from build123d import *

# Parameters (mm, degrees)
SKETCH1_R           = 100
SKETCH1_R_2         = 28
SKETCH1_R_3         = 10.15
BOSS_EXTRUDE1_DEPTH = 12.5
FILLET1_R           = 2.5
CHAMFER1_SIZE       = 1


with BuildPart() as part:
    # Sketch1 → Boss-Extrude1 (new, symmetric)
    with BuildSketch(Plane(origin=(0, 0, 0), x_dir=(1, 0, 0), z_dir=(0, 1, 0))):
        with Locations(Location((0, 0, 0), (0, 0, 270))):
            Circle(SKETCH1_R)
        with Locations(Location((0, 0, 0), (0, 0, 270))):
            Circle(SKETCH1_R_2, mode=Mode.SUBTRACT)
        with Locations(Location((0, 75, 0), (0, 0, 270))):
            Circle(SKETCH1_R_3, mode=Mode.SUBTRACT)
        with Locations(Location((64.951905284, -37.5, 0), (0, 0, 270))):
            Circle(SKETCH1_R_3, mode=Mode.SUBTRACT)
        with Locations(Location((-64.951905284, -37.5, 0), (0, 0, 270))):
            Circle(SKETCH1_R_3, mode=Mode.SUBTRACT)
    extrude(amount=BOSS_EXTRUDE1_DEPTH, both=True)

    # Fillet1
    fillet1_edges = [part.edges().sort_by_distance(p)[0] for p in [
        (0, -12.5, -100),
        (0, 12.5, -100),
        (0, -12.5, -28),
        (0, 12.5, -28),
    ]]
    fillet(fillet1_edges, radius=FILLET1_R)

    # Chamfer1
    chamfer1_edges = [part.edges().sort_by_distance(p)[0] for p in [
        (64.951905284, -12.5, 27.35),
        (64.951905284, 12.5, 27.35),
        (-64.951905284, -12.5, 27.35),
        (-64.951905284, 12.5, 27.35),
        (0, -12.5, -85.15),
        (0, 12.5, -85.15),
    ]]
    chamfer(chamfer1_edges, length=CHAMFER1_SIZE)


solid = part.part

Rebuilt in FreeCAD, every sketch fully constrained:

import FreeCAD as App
import Part
import Sketcher

V = App.Vector


def edges_at(feature, points):
    """Names of the edges that pass closest to the given points."""
    edges = feature.Shape.Edges
    near = lambda p: min(range(len(edges)), key=lambda i: edges[i].distToShape(Part.Vertex(*p))[0])
    return sorted({f"Edge{near(p) + 1}" for p in points})

doc = App.newDocument("Part")
params = doc.addObject("Spreadsheet::Sheet", "Params")
for row, (alias, value) in enumerate([
    ("sketch1_diameter", "200 mm"),
    ("sketch1_diameter2", "56 mm"),
    ("sketch1_diameter3", "20.3 mm"),
    ("pad1_length", "25 mm"),
    ("fillet_radius", "2.5 mm"),
    ("chamfer_size", "1 mm"),
], start=1):
    params.set(f"A{row}", alias)
    params.set(f"B{row}", "=" + value)
    params.setAlias(f"B{row}", alias)

body = doc.addObject("PartDesign::Body", "Body")

# Sketch on XZ plane
sketch1 = body.newObject("Sketcher::SketchObject", "Sketch")
sketch1.AttachmentSupport = (doc.getObject("XZ_Plane"), [""])
sketch1.MapMode = "FlatFace"
sketch1.addGeometry([
    Part.Circle(V(0, 0, 0), V(0, 0, 1), 100),  # 0
    Part.Circle(V(0, -75, 0), V(0, 0, 1), 10),  # 1
    Part.Circle(V(-65, 38, 0), V(0, 0, 1), 10),  # 2
    Part.Circle(V(0, 0, 0), V(0, 0, 1), 28),  # 3
    Part.Circle(V(65, 38, 0), V(0, 0, 1), 10),  # 4
], False)
sketch1.addConstraint([
    Sketcher.Constraint("Coincident", 0, 3, -1, 1),
    Sketcher.Constraint("Coincident", 3, 3, -1, 1),
    Sketcher.Constraint("Equal", 1, 2),
    Sketcher.Constraint("Equal", 2, 4),
    Sketcher.Constraint("Symmetric", 2, 3, 4, 3, -2),
    Sketcher.Constraint("PointOnObject", 1, 3, -2),
    Sketcher.Constraint("Diameter", 0, 200.0),
    Sketcher.Constraint("Diameter", 3, 56.0),
    Sketcher.Constraint("Diameter", 1, 20.3),
    Sketcher.Constraint("DistanceY", 1, 3, -1, 1, 75.0),
    Sketcher.Constraint("DistanceY", -1, 1, 2, 3, 37.5),
    Sketcher.Constraint("DistanceX", 2, 3, 4, 3, 129.903811),
])
sketch1.setExpression("Constraints[6]", "Params.sketch1_diameter")
sketch1.setExpression("Constraints[7]", "Params.sketch1_diameter2")
sketch1.setExpression("Constraints[8]", "Params.sketch1_diameter3")
pad1 = body.newObject("PartDesign::Pad", "Pad")
pad1.Profile = sketch1
pad1.setExpression("Length", "Params.pad1_length")
pad1.Midplane = True
doc.recompute()

fillet = body.newObject("PartDesign::Fillet", "Fillet")
fillet.Base = (pad1, edges_at(pad1, [
    (0, -12.5, -100),
    (0, 12.5, -100),
    (0, -12.5, -28),
    (0, 12.5, -28),
]))
fillet.setExpression("Radius", "Params.fillet_radius")
doc.recompute()

chamfer = body.newObject("PartDesign::Chamfer", "Chamfer")
chamfer.Base = (fillet, edges_at(fillet, [
    (64.952, -12.5, 27.35),
    (64.952, 12.5, 27.35),
    (-64.952, -12.5, 27.35),
    (-64.952, 12.5, 27.35),
    (0, -12.5, -85.15),
    (0, 12.5, -85.15),
]))
chamfer.setExpression("Size", "Params.chamfer_size")

doc.recompute()
